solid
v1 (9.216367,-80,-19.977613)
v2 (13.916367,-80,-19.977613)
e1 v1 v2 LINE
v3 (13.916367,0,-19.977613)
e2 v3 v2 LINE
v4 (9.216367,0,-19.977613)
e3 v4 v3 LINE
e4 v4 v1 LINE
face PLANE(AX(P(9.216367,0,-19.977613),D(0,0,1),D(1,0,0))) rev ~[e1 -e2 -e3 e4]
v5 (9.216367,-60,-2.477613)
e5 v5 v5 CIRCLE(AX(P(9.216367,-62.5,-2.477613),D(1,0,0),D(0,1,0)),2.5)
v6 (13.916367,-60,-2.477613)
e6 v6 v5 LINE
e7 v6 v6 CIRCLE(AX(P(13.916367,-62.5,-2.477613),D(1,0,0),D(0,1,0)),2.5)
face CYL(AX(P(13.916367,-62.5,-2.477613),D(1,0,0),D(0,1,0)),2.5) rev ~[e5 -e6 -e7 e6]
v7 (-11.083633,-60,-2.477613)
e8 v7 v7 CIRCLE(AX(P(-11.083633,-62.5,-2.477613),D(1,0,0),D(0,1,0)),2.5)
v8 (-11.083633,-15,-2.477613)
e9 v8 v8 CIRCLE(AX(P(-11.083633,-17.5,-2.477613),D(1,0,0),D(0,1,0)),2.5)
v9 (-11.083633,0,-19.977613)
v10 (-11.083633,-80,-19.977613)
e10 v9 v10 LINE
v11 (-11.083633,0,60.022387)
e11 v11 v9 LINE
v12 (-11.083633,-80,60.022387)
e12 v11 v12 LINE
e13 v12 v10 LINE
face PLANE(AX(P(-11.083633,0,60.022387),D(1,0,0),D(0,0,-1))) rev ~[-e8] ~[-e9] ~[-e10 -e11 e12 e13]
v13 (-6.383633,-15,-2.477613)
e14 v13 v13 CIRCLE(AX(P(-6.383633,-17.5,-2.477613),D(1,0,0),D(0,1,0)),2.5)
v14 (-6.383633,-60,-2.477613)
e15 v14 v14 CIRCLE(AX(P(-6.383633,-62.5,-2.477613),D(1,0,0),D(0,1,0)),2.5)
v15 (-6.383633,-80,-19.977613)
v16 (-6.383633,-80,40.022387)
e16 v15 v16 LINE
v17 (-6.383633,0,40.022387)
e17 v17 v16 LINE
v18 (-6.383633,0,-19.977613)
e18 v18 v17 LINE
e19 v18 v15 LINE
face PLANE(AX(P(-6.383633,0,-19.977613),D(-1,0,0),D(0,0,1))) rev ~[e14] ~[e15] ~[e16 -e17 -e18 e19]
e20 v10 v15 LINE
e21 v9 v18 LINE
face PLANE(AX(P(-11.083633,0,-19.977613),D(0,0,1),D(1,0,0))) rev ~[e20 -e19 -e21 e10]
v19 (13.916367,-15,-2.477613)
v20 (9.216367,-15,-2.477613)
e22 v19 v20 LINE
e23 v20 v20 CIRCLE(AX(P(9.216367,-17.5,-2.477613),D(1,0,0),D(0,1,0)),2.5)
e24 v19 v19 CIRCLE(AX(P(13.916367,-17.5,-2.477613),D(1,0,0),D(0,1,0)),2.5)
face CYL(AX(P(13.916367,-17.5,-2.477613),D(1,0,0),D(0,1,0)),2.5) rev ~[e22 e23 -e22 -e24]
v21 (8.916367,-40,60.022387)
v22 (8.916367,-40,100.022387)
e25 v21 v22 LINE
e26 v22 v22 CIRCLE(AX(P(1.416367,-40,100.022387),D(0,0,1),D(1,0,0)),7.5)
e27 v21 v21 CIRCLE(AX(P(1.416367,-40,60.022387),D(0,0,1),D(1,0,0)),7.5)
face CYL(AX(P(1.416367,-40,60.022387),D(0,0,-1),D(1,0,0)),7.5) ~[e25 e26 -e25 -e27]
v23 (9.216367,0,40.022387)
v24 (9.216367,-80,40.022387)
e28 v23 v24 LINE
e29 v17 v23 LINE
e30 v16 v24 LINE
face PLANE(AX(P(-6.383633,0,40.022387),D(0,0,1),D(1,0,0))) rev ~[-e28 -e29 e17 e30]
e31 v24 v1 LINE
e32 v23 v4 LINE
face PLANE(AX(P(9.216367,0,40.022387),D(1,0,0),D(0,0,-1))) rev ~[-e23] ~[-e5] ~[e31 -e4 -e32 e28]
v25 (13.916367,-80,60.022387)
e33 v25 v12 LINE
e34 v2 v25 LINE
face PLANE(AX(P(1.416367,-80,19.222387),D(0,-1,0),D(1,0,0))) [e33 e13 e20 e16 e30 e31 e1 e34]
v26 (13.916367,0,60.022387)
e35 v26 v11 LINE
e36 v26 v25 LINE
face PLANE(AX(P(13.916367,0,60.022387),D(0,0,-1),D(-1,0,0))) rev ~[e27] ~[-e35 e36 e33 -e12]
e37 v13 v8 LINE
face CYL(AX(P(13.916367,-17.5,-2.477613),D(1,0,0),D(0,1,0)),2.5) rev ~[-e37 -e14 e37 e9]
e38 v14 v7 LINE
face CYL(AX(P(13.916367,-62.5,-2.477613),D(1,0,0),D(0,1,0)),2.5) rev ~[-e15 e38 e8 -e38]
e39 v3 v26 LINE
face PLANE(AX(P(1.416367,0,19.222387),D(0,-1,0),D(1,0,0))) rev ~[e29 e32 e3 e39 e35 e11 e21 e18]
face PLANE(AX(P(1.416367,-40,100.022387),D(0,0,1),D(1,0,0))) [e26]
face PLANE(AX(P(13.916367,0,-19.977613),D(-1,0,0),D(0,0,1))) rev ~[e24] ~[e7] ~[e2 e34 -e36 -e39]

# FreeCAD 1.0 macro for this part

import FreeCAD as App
import Part
import Sketcher

V = App.Vector


def add_polygon(sketch, points):
    """Adds a closed chain of lines whose ends are joined by coincident constraints."""
    first, n = sketch.GeometryCount, len(points)
    for a, b in zip(points, points[1:] + points[:1]):
        sketch.addGeometry(Part.LineSegment(App.Vector(*a, 0), App.Vector(*b, 0)), False)
    for i in range(n):
        sketch.addConstraint(Sketcher.Constraint("Coincident", first + i, 2, first + (i + 1) % n, 1))

doc = App.newDocument("Part")
body = doc.addObject("PartDesign::Body", "Body")

# Sketch on XZ plane
sketch1 = body.newObject("Sketcher::SketchObject", "Sketch")
sketch1.AttachmentSupport = (doc.getObject("XZ_Plane"), [""])
sketch1.MapMode = "FlatFace"
add_polygon(sketch1, [(13.9, 60), (-11.1, 60), (-11.1, -20), (-6.4, -20), (-6.4, 40), (9.2, 40), (9.2, -20), (13.9, -20)])  # lines 0-7
sketch1.addConstraint(Sketcher.Constraint("Horizontal", 0))
sketch1.addConstraint(Sketcher.Constraint("Vertical", 1))
sketch1.addConstraint(Sketcher.Constraint("Horizontal", 2))
sketch1.addConstraint(Sketcher.Constraint("Vertical", 3))
sketch1.addConstraint(Sketcher.Constraint("Horizontal", 4))
sketch1.addConstraint(Sketcher.Constraint("Vertical", 5))
sketch1.addConstraint(Sketcher.Constraint("Horizontal", 6))
sketch1.addConstraint(Sketcher.Constraint("Vertical", 7))
sketch1.addConstraint(Sketcher.Constraint("Horizontal", 2, 2, 5, 2))
sketch1.addConstraint(Sketcher.Constraint("Equal", 2, 6))
sketch1.addConstraint(Sketcher.Constraint("DistanceX", 0, 2, 0, 1, 25.0))
sketch1.addConstraint(Sketcher.Constraint("DistanceY", 1, 2, 1, 1, 80.0))
sketch1.addConstraint(Sketcher.Constraint("DistanceY", 3, 1, 3, 2, 60.0))
sketch1.addConstraint(Sketcher.Constraint("DistanceX", 2, 1, 2, 2, 4.7))
sketch1.addConstraint(Sketcher.Constraint("DistanceX", 0, 2, -1, 1, 11.083633))
sketch1.addConstraint(Sketcher.Constraint("DistanceY", -1, 1, 0, 2, 60.022387))
pad1 = body.newObject("PartDesign::Pad", "Pad")
pad1.Profile = sketch1
pad1.Length = 80

# Sketch on XY plane
sketch2 = body.newObject("Sketcher::SketchObject", "Sketch001")
sketch2.AttachmentSupport = (doc.getObject("XY_Plane"), [""])
sketch2.MapMode = "FlatFace"
sketch2.AttachmentOffset = App.Placement(V(0, 0, 60.022387), App.Rotation())
sketch2.addGeometry(Part.Circle(V(1, -40, 0), V(0, 0, 1), 8), False)
sketch2.addConstraint(Sketcher.Constraint("Diameter", 0, 15.0))
sketch2.addConstraint(Sketcher.Constraint("DistanceY", 0, 3, -1, 1, 40.0))
sketch2.addConstraint(Sketcher.Constraint("DistanceX", -1, 1, 0, 3, 1.416367))
pad2 = body.newObject("PartDesign::Pad", "Pad001")
pad2.Profile = sketch2
pad2.Length = 40

# Sketch on YZ plane
sketch3 = body.newObject("Sketcher::SketchObject", "Sketch002")
sketch3.AttachmentSupport = (doc.getObject("YZ_Plane"), [""])
sketch3.MapMode = "FlatFace"
sketch3.AttachmentOffset = App.Placement(V(0, 0, 13.916367), App.Rotation())
sketch3.addGeometry(Part.Circle(V(-62.5, -2.5, 0), V(0, 0, 1), 2.5), False)
sketch3.addGeometry(Part.Circle(V(-17.5, -2.5, 0), V(0, 0, 1), 2.5), False)
sketch3.addConstraint(Sketcher.Constraint("Equal", 0, 1))
sketch3.addConstraint(Sketcher.Constraint("Horizontal", 0, 3, 1, 3))
sketch3.addConstraint(Sketcher.Constraint("Diameter", 0, 5.0))
sketch3.addConstraint(Sketcher.Constraint("DistanceX", 0, 3, 1, 3, 45.0))
sketch3.addConstraint(Sketcher.Constraint("DistanceX", 0, 3, -1, 1, 62.5))
sketch3.addConstraint(Sketcher.Constraint("DistanceY", 0, 3, -1, 1, 2.477613))
pocket1 = body.newObject("PartDesign::Pocket", "Pocket")
pocket1.Profile = sketch3
pocket1.Length = 50

doc.recompute()
